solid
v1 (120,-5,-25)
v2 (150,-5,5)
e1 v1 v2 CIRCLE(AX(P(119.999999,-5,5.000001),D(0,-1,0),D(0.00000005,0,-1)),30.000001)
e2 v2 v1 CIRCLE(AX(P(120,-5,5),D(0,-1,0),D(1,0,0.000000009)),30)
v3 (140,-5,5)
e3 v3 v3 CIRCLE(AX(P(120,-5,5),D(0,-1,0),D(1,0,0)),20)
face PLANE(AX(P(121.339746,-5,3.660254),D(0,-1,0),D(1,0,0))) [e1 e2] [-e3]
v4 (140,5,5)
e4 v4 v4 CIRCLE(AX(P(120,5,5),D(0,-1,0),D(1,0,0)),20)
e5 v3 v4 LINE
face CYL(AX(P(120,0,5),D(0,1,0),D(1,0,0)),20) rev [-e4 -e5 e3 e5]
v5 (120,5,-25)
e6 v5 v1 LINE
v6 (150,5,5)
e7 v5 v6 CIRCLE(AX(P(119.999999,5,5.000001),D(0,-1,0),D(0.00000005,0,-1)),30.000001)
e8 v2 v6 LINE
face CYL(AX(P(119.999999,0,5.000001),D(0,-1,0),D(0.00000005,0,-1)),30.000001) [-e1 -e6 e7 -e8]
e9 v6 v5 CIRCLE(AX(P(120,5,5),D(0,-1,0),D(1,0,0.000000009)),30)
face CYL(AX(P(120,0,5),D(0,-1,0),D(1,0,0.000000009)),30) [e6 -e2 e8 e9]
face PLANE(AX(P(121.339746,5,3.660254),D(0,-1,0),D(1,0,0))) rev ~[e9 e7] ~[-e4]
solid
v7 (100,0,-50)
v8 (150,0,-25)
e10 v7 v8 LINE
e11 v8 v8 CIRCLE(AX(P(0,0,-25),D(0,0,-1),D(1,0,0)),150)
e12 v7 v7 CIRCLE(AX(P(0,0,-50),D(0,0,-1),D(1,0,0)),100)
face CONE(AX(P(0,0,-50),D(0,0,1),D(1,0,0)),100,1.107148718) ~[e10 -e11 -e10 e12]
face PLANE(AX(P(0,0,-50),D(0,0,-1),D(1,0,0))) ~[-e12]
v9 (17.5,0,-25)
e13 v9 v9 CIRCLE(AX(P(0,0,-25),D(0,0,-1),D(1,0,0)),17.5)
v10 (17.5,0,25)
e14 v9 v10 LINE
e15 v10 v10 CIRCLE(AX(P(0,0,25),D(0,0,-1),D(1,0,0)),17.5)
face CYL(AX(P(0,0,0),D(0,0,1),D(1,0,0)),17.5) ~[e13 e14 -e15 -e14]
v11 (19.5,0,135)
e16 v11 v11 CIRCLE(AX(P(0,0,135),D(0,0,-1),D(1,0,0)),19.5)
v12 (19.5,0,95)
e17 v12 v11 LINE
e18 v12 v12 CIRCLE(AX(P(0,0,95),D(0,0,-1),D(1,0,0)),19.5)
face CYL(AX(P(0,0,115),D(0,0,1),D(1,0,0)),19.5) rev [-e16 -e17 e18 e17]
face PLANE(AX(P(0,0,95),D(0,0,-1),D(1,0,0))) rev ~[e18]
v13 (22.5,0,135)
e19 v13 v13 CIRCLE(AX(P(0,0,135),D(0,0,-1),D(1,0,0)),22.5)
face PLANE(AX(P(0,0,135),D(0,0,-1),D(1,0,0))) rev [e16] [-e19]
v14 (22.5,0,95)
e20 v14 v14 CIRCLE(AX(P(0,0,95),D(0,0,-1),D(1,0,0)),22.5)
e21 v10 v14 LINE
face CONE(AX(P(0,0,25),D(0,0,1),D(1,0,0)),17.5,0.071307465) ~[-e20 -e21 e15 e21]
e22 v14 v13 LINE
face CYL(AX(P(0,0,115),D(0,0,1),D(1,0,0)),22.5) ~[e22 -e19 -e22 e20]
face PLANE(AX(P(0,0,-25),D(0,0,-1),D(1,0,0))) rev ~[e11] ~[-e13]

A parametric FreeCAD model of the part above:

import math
import FreeCAD as App
import Part
import Sketcher
Q = App.Units.Quantity


def add_polygon(sketch, points):
    """Adds a closed chain of lines whose ends are joined by coincident constraints."""
    first, n = sketch.GeometryCount, len(points)
    for a, b in zip(points, points[1:] + points[:1]):
        sketch.addGeometry(Part.LineSegment(App.Vector(*a, 0), App.Vector(*b, 0)), False)
    for i in range(n):
        sketch.addConstraint(Sketcher.Constraint("Coincident", first + i, 2, first + (i + 1) % n, 1))

doc = App.newDocument("Part")
body = doc.addObject("PartDesign::Body", "Body")
body.AllowCompound = True

# Sketch on XZ plane
sketch1 = doc.addObject("Sketcher::SketchObject", "Sketch")
body.addObject(sketch1)
sketch1.AttachmentSupport = (doc.XZ_Plane, [""])
sketch1.MapMode = "FlatFace"
add_polygon(sketch1, [(19.5, 135), (19.5, 95), (0, 95), (0, -50), (100, -50), (150, -25), (17.5, -25), (17.5, 25), (22.5, 95), (22.5, 135)])  # lines 0-9
sketch1.addConstraint([
    Sketcher.Constraint("Vertical", 0),
    Sketcher.Constraint("Horizontal", 1),
    Sketcher.Constraint("Vertical", 2),
    Sketcher.Constraint("Horizontal", 3),
    Sketcher.Constraint("Horizontal", 5),
    Sketcher.Constraint("Vertical", 6),
    Sketcher.Constraint("Vertical", 8),
    Sketcher.Constraint("Horizontal", 9),
    Sketcher.Constraint("PointOnObject", 1, 2, -2),
    Sketcher.Constraint("Horizontal", 1, 2, 7, 2),
    Sketcher.Constraint("DistanceX", 3, 1, 3, 2, Q("100 mm")),
    Sketcher.Constraint("DistanceX", 9, 2, 9, 1, Q("3 mm")),
    Sketcher.Constraint("DistanceY", 0, 2, 0, 1, Q("40 mm")),
    Sketcher.Constraint("DistanceY", 2, 2, 2, 1, Q("145 mm")),
    Sketcher.Constraint("DistanceY", 6, 1, 6, 2, Q("50 mm")),
    Sketcher.Constraint("DistanceX", 1, 2, 1, 1, Q("19.5 mm")),
    Sketcher.Constraint("DistanceX", 5, 2, 5, 1, Q("132.5 mm")),
    Sketcher.Constraint("DistanceY", -1, 1, 0, 2, Q("95 mm")),
    Sketcher.Constraint("DistanceX", -1, 1, 4, 2, Q("150 mm")),
    Sketcher.Constraint("DistanceY", 4, 2, -1, 1, Q("25 mm")),
])
revolution = doc.addObject("PartDesign::Revolution", "Revolution")
body.addObject(revolution)
revolution.Profile = sketch1
revolution.ReferenceAxis = (sketch1, ["V_Axis"])
revolution.Angle = 360

# Sketch on XZ plane
sketch2 = doc.addObject("Sketcher::SketchObject", "Sketch001")
body.addObject(sketch2)
sketch2.AttachmentSupport = (doc.XZ_Plane, [""])
sketch2.MapMode = "FlatFace"
sketch2.addGeometry([
    Part.ArcOfCircle(Part.Circle(App.Vector(120, 5, 0), App.Vector(0, 0, 1), 30), math.radians(0), math.radians(270)),
    Part.ArcOfCircle(Part.Circle(App.Vector(119.999999, 5.000001, 0), App.Vector(0, 0, 1), 30.000001), math.radians(-89.999997), math.radians(-0.000003)),
    Part.Circle(App.Vector(120, 5, 0), App.Vector(0, 0, 1), 20),
], False)
sketch2.addConstraint([
    Sketcher.Constraint("Tangent", 0, 1, 1, 2),
    Sketcher.Constraint("Coincident", 1, 1, 0, 2),
    Sketcher.Constraint("Coincident", 2, 3, 0, 3),
    Sketcher.Constraint("Horizontal", 2, 3, 0, 1),
    Sketcher.Constraint("Vertical", 2, 3, 1, 1),
    Sketcher.Constraint("Diameter", 2, Q("40 mm")),
    Sketcher.Constraint("Radius", 0, Q("30 mm")),
    Sketcher.Constraint("DistanceX", -1, 1, 0, 3, Q("120 mm")),
    Sketcher.Constraint("DistanceY", -1, 1, 0, 3, Q("5 mm")),
])
pad1 = doc.addObject("PartDesign::Pad", "Pad")
body.addObject(pad1)
pad1.Profile = sketch2
pad1.Length = 10
pad1.Midplane = True

doc.recompute()
